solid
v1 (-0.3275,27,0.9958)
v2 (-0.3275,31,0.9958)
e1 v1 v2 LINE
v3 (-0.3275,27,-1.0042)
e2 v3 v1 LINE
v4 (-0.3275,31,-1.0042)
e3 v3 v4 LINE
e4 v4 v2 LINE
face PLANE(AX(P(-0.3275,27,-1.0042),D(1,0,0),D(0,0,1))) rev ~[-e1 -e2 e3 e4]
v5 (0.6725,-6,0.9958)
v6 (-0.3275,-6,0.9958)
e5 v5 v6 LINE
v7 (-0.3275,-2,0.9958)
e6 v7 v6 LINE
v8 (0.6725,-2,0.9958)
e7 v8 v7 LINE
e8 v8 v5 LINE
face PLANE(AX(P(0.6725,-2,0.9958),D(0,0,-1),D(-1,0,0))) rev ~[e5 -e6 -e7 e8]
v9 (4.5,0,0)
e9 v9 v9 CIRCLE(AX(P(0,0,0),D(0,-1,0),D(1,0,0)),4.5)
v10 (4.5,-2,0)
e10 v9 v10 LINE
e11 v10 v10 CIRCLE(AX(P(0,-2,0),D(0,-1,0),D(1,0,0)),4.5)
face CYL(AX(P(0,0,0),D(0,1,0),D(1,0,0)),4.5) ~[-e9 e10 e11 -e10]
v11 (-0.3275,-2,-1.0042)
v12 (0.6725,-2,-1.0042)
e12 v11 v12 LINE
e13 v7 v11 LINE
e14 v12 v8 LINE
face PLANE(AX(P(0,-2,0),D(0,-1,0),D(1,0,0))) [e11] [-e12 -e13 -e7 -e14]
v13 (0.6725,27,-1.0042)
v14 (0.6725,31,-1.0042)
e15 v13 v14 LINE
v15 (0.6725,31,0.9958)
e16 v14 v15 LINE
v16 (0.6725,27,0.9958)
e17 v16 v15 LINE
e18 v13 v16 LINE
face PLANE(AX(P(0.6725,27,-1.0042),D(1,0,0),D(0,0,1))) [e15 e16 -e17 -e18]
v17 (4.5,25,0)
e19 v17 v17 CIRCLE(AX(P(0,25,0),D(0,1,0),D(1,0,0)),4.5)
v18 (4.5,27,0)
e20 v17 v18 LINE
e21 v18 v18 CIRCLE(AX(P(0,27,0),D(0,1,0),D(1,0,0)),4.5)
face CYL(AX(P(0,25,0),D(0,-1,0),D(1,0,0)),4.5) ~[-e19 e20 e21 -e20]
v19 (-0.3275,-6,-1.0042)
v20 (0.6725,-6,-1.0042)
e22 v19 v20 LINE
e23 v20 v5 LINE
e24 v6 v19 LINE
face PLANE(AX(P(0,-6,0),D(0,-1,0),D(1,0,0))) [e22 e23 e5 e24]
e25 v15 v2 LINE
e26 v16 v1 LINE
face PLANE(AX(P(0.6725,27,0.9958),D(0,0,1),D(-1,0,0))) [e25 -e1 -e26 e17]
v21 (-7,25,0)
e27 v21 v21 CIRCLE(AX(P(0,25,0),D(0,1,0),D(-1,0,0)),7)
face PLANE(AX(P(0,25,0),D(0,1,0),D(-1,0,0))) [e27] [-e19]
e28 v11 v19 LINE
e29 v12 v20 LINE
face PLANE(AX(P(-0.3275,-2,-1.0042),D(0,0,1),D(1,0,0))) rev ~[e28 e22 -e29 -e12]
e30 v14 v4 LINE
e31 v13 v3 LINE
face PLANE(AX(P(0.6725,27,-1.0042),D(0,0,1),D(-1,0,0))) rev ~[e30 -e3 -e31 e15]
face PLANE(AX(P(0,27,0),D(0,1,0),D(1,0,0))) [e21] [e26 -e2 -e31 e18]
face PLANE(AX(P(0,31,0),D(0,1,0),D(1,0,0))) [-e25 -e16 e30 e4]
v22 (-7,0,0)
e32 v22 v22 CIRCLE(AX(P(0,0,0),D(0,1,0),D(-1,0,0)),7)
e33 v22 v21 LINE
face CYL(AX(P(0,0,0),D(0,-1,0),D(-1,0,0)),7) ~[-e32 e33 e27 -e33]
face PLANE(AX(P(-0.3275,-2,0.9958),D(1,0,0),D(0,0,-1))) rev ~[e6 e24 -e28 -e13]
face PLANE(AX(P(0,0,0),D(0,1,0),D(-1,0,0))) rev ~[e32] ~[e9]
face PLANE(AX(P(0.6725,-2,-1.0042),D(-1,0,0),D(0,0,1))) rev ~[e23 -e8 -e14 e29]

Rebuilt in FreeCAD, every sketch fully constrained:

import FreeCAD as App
import Part
import Sketcher
from FreeCAD import Vector


def add_polygon(sketch, points):
    """Adds a closed chain of lines whose ends are joined by coincident constraints."""
    first, n = sketch.GeometryCount, len(points)
    for a, b in zip(points, points[1:] + points[:1]):
        sketch.addGeometry(Part.LineSegment(App.Vector(*a, 0), App.Vector(*b, 0)), False)
    for i in range(n):
        sketch.addConstraint(Sketcher.Constraint("Coincident", first + i, 2, first + (i + 1) % n, 1))

doc = App.newDocument("Part")
params = doc.addObject("Spreadsheet::Sheet", "Params")
for row, (alias, value) in enumerate([
    ("sketch1_diameter", "14 mm"),
    ("pad1_length", "25 mm"),
    ("sketch2_diameter", "9 mm"),
    ("pad2_length", "4 mm"),
    ("sketch3_diameter", "9 mm"),
    ("pad3_length", "2 mm"),
    ("sketch4_width", "1 mm"),
    ("sketch4_height", "2 mm"),
    ("pad4_length", "4 mm"),
    ("sketch5_width", "1 mm"),
    ("sketch5_height", "2 mm"),
    ("pad5_length", "4 mm"),
], start=1):
    params.set(f"A{row}", alias)
    params.set(f"B{row}", "=" + value)
    params.setAlias(f"B{row}", alias)

body = doc.addObject("PartDesign::Body", "Body")

sketch1 = doc.addObject("Sketcher::SketchObject", "Sketch")
body.addObject(sketch1)
sketch1.AttachmentSupport = (doc.XZ_Plane, [""])
sketch1.MapMode = "FlatFace"
sketch1.addGeometry(Part.Circle(Vector(0, 0, 0), Vector(0, 0, 1), 7), False)
sketch1.addConstraint([
    Sketcher.Constraint("Coincident", 0, 3, -1, 1),
    Sketcher.Constraint("Diameter", 0, 14.0),
])
sketch1.setExpression("Constraints[1]", "Params.sketch1_diameter")
pad1 = doc.addObject("PartDesign::Pad", "Pad")
body.addObject(pad1)
pad1.Profile = sketch1
pad1.setExpression("Length", "Params.pad1_length")
pad1.Reversed = True

sketch2 = doc.addObject("Sketcher::SketchObject", "Sketch001")
body.addObject(sketch2)
sketch2.AttachmentSupport = (doc.XZ_Plane, [""])
sketch2.MapMode = "FlatFace"
sketch2.addGeometry(Part.Circle(Vector(0, 0, 0), Vector(0, 0, 1), 4.5), False)
sketch2.addConstraint([
    Sketcher.Constraint("Coincident", 0, 3, -1, 1),
    Sketcher.Constraint("Diameter", 0, 9.0),
])
sketch2.setExpression("Constraints[1]", "Params.sketch2_diameter")
pad2 = doc.addObject("PartDesign::Pad", "Pad001")
body.addObject(pad2)
pad2.Profile = sketch2
pad2.setExpression("Length", "Params.pad2_length")
pad2.Midplane = True

sketch3 = doc.addObject("Sketcher::SketchObject", "Sketch002")
body.addObject(sketch3)
sketch3.AttachmentSupport = (doc.XZ_Plane, [""])
sketch3.MapMode = "FlatFace"
sketch3.AttachmentOffset = App.Placement(Vector(0, 0, -25), App.Rotation())
sketch3.addGeometry(Part.Circle(Vector(0, 0, 0), Vector(0, 0, 1), 4.5), False)
sketch3.addConstraint([
    Sketcher.Constraint("Coincident", 0, 3, -1, 1),
    Sketcher.Constraint("Diameter", 0, 9.0),
])
sketch3.setExpression("Constraints[1]", "Params.sketch3_diameter")
pad3 = doc.addObject("PartDesign::Pad", "Pad002")
body.addObject(pad3)
pad3.Profile = sketch3
pad3.setExpression("Length", "Params.pad3_length")
pad3.Reversed = True

sketch4 = doc.addObject("Sketcher::SketchObject", "Sketch003")
body.addObject(sketch4)
sketch4.AttachmentSupport = (doc.XZ_Plane, [""])
sketch4.MapMode = "FlatFace"
sketch4.AttachmentOffset = App.Placement(Vector(0, 0, 2), App.Rotation())
add_polygon(sketch4, [(-0.3, 1), (-0.3, -1), (0.7, -1), (0.7, 1)])
sketch4.addConstraint([
    Sketcher.Constraint("Vertical", 0),
    Sketcher.Constraint("Horizontal", 1),
    Sketcher.Constraint("Vertical", 2),
    Sketcher.Constraint("Horizontal", 3),
    Sketcher.Constraint("DistanceX", 1, 1, 1, 2, 1.0),
    Sketcher.Constraint("DistanceY", 0, 2, 0, 1, 2.0),
    Sketcher.Constraint("DistanceX", 0, 2, -1, 1, 0.3275),
    Sketcher.Constraint("DistanceY", 0, 2, -1, 1, 1.0042),
])
sketch4.setExpression("Constraints[8]", "Params.sketch4_width")
sketch4.setExpression("Constraints[9]", "Params.sketch4_height")
pad4 = doc.addObject("PartDesign::Pad", "Pad003")
body.addObject(pad4)
pad4.Profile = sketch4
pad4.setExpression("Length", "Params.pad4_length")

sketch5 = doc.addObject("Sketcher::SketchObject", "Sketch004")
body.addObject(sketch5)
sketch5.AttachmentSupport = (doc.XZ_Plane, [""])
sketch5.MapMode = "FlatFace"
sketch5.AttachmentOffset = App.Placement(Vector(0, 0, -27), App.Rotation())
add_polygon(sketch5, [(-0.3, 1), (0.7, 1), (0.7, -1), (-0.3, -1)])
sketch5.addConstraint([
    Sketcher.Constraint("Horizontal", 0),
    Sketcher.Constraint("Vertical", 1),
    Sketcher.Constraint("Horizontal", 2),
    Sketcher.Constraint("Vertical", 3),
    Sketcher.Constraint("DistanceX", 0, 1, 0, 2, 1.0),
    Sketcher.Constraint("DistanceY", 1, 2, 1, 1, 2.0),
    Sketcher.Constraint("DistanceX", -1, 1, 0, 2, 0.6725),
    Sketcher.Constraint("DistanceY", -1, 1, 0, 2, 0.9958),
])
sketch5.setExpression("Constraints[8]", "Params.sketch5_width")
sketch5.setExpression("Constraints[9]", "Params.sketch5_height")
pad5 = doc.addObject("PartDesign::Pad", "Pad004")
body.addObject(pad5)
pad5.Profile = sketch5
pad5.setExpression("Length", "Params.pad5_length")
pad5.Reversed = True

doc.recompute()
